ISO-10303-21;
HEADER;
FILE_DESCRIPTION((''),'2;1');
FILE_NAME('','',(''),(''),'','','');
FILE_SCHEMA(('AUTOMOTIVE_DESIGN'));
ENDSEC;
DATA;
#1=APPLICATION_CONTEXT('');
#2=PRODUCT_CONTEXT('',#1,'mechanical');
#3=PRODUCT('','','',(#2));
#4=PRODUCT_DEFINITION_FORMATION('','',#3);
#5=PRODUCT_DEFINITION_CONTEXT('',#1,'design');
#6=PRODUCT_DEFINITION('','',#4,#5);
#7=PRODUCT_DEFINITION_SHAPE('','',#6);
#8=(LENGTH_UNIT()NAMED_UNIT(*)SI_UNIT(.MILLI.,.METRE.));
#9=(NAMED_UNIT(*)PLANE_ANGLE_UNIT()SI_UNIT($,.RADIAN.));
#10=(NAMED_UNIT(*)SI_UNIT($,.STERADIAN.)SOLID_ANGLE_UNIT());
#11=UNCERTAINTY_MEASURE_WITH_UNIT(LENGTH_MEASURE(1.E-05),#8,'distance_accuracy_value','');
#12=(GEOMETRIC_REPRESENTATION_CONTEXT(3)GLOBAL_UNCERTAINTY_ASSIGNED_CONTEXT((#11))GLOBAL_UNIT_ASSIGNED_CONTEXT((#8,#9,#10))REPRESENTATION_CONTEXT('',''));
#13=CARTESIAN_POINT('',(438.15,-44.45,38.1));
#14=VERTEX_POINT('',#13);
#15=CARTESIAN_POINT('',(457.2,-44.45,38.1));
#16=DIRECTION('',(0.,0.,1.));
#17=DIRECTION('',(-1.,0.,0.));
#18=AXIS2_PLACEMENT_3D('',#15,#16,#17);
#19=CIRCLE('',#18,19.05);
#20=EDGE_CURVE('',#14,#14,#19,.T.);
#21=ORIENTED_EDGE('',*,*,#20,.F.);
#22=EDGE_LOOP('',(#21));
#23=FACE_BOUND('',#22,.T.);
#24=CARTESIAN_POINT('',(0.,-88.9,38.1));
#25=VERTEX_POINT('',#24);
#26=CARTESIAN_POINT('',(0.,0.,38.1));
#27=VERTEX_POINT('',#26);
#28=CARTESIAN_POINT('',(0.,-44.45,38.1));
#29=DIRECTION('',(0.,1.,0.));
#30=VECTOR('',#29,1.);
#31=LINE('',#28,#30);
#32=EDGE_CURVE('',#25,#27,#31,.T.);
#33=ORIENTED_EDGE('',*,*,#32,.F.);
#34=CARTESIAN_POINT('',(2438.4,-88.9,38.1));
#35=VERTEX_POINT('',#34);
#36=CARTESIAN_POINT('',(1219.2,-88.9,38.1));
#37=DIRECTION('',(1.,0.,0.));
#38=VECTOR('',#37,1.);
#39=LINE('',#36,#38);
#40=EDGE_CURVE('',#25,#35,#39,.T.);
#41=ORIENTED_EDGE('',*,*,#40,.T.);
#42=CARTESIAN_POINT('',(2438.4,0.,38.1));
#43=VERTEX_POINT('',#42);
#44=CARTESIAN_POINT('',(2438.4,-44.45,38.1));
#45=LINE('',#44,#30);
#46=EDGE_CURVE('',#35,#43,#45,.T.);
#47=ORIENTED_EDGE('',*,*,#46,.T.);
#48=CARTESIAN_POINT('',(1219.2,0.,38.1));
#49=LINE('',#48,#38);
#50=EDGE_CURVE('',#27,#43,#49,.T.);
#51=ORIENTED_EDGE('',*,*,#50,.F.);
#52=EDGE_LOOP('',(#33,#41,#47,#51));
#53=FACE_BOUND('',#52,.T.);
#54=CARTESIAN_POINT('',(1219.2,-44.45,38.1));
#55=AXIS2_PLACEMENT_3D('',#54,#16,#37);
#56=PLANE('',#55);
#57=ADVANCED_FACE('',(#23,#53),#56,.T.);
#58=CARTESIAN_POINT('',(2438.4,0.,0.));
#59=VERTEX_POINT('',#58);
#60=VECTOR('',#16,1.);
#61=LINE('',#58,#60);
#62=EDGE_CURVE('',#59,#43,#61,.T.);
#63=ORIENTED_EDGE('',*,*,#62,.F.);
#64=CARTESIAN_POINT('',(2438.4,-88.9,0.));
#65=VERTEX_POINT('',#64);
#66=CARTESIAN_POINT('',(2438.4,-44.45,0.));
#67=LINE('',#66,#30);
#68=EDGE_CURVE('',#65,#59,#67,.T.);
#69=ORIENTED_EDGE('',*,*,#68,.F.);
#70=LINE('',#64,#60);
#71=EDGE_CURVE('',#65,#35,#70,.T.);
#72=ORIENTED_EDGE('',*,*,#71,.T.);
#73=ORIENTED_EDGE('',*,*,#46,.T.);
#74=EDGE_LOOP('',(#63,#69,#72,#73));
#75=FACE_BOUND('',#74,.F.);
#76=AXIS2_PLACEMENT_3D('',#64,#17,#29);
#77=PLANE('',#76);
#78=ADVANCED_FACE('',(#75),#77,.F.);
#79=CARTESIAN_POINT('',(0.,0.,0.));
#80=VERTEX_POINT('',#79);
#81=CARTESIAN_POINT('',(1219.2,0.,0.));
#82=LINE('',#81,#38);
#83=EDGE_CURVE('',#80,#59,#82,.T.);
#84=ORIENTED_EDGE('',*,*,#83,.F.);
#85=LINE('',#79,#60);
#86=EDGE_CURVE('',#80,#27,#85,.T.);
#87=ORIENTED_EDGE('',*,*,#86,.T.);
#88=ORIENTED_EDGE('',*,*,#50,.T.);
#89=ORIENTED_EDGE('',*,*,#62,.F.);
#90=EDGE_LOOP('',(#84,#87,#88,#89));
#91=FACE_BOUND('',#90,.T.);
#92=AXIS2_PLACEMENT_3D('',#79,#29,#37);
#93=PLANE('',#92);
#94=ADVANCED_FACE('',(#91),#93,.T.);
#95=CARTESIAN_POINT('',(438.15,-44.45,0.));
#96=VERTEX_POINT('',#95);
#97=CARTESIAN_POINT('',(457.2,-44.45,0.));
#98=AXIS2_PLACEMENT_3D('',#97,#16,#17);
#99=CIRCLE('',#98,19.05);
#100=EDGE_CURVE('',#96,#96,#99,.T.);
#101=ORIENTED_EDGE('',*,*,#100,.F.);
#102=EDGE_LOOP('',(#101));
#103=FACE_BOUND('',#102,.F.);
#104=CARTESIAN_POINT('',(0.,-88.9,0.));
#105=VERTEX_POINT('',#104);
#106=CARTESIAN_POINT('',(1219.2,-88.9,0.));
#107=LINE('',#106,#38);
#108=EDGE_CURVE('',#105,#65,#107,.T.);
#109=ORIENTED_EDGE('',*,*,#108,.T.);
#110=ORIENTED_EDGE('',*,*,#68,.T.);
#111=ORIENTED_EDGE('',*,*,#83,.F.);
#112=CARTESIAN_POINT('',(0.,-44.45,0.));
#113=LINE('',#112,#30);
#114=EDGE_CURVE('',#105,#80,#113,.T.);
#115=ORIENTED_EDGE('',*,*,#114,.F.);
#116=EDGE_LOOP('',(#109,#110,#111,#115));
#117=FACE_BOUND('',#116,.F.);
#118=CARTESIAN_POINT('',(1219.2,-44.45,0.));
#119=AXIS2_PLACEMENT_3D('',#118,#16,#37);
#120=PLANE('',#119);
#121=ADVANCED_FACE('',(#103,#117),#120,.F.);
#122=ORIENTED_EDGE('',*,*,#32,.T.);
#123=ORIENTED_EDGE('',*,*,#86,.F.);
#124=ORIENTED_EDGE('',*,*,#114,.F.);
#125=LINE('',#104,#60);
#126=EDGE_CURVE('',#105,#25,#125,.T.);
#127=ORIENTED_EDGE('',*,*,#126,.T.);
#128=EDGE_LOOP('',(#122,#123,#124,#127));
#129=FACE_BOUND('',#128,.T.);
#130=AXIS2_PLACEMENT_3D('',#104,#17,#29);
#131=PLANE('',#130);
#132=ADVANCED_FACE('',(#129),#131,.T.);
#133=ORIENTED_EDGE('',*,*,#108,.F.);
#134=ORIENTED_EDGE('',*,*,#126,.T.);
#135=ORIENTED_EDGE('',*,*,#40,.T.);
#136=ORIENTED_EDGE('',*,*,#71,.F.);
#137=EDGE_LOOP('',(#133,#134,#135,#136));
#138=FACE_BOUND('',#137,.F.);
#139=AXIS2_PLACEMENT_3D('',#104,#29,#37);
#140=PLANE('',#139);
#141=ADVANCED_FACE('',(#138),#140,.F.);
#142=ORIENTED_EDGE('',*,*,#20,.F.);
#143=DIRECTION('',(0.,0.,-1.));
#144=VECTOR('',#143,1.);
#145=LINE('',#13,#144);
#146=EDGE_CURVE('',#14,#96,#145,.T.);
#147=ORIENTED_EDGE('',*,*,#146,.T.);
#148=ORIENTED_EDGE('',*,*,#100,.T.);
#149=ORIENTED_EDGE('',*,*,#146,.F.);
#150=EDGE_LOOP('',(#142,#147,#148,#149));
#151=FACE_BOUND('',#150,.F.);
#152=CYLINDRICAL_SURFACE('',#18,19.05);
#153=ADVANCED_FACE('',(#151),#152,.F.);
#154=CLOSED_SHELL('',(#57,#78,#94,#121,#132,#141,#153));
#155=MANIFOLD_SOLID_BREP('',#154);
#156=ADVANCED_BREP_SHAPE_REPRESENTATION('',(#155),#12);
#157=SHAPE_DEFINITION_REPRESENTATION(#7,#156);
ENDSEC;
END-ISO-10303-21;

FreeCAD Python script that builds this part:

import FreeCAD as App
import Part
import Sketcher

V = App.Vector
Q = App.Units.Quantity

doc = App.newDocument("Part")
params = doc.addObject("Spreadsheet::Sheet", "Params")
for row, (alias, value) in enumerate([
    ("sketch1_width", "96 in"),
    ("sketch1_height", "3.5 in"),
    ("pad1_length", "1.5 in"),
    ("sketch2_diameter", "1.5 in"),
    ("pocket1_length", "1.5 in"),
], start=1):
    params.set(f"A{row}", alias)
    params.set(f"B{row}", "=" + value)
    params.setAlias(f"B{row}", alias)

body = doc.addObject("PartDesign::Body", "Body")

sketch1 = body.newObject("Sketcher::SketchObject", "Sketch")
sketch1.AttachmentSupport = (doc.getObject("XY_Plane"), [""])
sketch1.MapMode = "FlatFace"
sketch1.addGeometry([
    Part.LineSegment(V(0, 0, 0), V(0, -89, 0)),
    Part.LineSegment(V(0, -89, 0), V(2438, -89, 0)),
    Part.LineSegment(V(2438, -89, 0), V(2438, 0, 0)),
    Part.LineSegment(V(2438, 0, 0), V(0, 0, 0)),
], False)
sketch1.addConstraint([
    Sketcher.Constraint("Coincident", 0, 2, 1, 1),
    Sketcher.Constraint("Coincident", 1, 2, 2, 1),
    Sketcher.Constraint("Coincident", 2, 2, 3, 1),
    Sketcher.Constraint("Coincident", 3, 2, 0, 1),
    Sketcher.Constraint("Vertical", 0),
    Sketcher.Constraint("Horizontal", 1),
    Sketcher.Constraint("Vertical", 2),
    Sketcher.Constraint("Horizontal", 3),
    Sketcher.Constraint("Coincident", 3, 2, -1, 1),
    Sketcher.Constraint("DistanceX", 1, 1, 1, 2, Q("96 in")),
    Sketcher.Constraint("DistanceY", 0, 2, 0, 1, Q("3.5 in")),
])
sketch1.setExpression("Constraints[9]", "Params.sketch1_width")
sketch1.setExpression("Constraints[10]", "Params.sketch1_height")
pad1 = body.newObject("PartDesign::Pad", "Pad")
pad1.Profile = sketch1
pad1.setExpression("Length", "Params.pad1_length")

sketch2 = body.newObject("Sketcher::SketchObject", "Sketch001")
sketch2.AttachmentSupport = (doc.getObject("XY_Plane"), [""])
sketch2.MapMode = "FlatFace"
sketch2.AttachmentOffset = App.Placement(V(0, 0, 1.5 * 25.4), App.Rotation())
sketch2.addGeometry(Part.Circle(V(457, -44, 0), V(0, 0, 1), 19), False)
sketch2.addConstraint([
    Sketcher.Constraint("Diameter", 0, Q("1.5 in")),
    Sketcher.Constraint("DistanceX", -1, 1, 0, 3, Q("18 in")),
    Sketcher.Constraint("DistanceY", 0, 3, -1, 1, Q("1.75 in")),
])
sketch2.setExpression("Constraints[0]", "Params.sketch2_diameter")
pocket1 = body.newObject("PartDesign::Pocket", "Pocket")
pocket1.Profile = sketch2
pocket1.setExpression("Length", "Params.pocket1_length")

doc.recompute()
